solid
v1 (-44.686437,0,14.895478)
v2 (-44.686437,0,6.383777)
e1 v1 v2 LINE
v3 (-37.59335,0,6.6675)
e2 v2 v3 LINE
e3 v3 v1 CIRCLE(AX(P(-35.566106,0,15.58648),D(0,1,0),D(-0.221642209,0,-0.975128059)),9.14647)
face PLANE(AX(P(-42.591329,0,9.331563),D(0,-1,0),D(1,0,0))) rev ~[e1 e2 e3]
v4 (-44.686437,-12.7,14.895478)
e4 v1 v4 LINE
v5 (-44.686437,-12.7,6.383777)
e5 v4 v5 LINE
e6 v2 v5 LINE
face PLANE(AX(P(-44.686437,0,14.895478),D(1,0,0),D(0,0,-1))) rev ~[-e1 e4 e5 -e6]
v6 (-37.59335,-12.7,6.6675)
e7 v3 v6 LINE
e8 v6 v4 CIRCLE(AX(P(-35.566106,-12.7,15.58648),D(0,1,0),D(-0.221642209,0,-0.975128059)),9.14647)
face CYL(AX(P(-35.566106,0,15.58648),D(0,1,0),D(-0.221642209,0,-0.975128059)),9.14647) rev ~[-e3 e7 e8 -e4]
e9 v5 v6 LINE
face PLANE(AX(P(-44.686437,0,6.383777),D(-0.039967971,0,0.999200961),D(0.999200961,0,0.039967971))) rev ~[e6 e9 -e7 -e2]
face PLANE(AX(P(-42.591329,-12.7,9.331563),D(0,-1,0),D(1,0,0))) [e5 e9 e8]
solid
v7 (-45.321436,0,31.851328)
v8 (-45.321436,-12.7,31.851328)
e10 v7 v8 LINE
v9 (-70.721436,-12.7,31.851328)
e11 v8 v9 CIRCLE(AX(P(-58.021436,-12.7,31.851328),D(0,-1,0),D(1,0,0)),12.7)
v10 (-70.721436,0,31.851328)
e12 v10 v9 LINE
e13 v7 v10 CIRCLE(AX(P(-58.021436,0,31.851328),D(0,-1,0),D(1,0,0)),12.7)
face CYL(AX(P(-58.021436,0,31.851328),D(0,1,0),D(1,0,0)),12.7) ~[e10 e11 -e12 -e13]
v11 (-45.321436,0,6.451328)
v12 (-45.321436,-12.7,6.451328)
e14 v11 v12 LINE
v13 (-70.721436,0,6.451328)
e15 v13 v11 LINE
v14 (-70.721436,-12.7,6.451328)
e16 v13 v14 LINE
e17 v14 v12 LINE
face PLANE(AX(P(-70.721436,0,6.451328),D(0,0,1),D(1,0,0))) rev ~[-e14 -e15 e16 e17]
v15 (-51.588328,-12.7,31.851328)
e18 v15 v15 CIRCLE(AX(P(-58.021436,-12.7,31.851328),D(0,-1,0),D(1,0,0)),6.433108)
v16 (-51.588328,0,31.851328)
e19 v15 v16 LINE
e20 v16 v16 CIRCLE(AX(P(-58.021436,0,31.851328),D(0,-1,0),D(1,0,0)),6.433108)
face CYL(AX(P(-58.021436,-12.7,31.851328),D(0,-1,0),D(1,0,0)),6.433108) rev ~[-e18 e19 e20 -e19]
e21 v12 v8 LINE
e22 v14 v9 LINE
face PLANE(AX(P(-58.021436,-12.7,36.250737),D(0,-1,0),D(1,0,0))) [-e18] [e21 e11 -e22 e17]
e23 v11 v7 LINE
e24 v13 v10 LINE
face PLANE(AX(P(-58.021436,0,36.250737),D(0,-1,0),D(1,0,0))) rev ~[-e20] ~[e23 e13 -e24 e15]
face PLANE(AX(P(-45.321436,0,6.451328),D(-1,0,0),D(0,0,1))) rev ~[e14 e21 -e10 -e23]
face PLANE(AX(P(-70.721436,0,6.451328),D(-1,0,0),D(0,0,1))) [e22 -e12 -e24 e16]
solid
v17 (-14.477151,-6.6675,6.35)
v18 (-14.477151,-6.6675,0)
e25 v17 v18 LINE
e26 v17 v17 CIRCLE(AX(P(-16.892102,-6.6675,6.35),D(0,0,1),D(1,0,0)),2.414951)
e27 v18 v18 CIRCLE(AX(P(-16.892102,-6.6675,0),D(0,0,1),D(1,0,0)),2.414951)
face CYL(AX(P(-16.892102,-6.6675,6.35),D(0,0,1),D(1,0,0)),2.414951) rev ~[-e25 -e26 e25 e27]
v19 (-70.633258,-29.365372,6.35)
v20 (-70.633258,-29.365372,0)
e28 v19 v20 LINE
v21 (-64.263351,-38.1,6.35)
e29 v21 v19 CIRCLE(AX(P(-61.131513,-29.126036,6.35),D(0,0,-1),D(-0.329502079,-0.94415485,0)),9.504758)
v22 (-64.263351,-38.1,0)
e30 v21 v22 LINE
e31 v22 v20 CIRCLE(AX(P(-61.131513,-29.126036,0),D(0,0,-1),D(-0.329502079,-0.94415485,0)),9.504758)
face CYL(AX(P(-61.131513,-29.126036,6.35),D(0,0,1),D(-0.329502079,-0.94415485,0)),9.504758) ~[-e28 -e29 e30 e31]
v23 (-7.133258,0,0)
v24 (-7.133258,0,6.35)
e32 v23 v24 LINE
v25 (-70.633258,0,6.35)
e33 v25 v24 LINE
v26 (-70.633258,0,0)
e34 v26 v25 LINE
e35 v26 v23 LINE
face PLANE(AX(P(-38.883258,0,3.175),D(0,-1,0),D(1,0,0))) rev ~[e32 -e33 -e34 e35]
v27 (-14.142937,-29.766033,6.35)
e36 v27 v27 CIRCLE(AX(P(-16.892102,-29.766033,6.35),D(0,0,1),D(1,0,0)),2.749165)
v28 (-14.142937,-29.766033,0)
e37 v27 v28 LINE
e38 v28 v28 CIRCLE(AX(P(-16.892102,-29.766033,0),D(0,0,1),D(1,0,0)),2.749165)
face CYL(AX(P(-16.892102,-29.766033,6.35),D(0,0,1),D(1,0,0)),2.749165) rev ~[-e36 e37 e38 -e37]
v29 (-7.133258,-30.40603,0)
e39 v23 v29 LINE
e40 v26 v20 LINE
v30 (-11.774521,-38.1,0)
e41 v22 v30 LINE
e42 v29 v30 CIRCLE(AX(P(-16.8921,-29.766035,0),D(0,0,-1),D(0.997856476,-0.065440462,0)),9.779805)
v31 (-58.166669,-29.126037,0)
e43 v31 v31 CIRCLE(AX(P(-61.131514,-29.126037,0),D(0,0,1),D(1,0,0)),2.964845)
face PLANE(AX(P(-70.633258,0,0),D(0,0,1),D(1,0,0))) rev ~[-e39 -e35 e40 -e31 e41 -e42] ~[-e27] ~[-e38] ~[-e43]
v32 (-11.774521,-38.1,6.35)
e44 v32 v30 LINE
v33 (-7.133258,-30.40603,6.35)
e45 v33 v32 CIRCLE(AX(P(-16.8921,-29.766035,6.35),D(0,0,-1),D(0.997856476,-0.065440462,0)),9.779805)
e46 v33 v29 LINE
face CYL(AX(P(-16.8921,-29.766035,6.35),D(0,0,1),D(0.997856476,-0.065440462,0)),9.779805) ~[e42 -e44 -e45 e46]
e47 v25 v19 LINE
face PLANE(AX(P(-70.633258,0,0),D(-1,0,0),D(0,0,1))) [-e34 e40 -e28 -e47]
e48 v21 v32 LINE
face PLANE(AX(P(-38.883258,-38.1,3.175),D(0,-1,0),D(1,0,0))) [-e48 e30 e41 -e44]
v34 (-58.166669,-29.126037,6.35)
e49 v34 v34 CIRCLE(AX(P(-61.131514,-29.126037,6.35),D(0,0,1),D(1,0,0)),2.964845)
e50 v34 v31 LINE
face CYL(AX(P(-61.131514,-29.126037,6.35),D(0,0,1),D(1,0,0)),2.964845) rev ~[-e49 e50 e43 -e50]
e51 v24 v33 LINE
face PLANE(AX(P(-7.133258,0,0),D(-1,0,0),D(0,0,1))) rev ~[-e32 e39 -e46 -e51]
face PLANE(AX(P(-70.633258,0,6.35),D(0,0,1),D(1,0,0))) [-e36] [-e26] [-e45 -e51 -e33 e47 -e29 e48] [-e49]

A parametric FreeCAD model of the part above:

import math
import FreeCAD as App
import Part
import Sketcher
from FreeCAD import Vector
Q = App.Units.Quantity


def add_polygon(sketch, points):
    """Adds a closed chain of lines whose ends are joined by coincident constraints."""
    first, n = sketch.GeometryCount, len(points)
    for a, b in zip(points, points[1:] + points[:1]):
        sketch.addGeometry(Part.LineSegment(App.Vector(*a, 0), App.Vector(*b, 0)), False)
    for i in range(n):
        sketch.addConstraint(Sketcher.Constraint("Coincident", first + i, 2, first + (i + 1) % n, 1))

doc = App.newDocument("Part")
body = doc.addObject("PartDesign::Body", "Body")

sketch1 = body.newObject("Sketcher::SketchObject", "Sketch")
sketch1.AttachmentSupport = (doc.getObject("XZ_Plane"), [""])
sketch1.MapMode = "FlatFace"
add_polygon(sketch1, [(-70.633258, 6.35), (-70.633258, 0), (-7.133258, 0), (-7.133258, 6.35)])
sketch1.addConstraint([
    Sketcher.Constraint("Vertical", 0),
    Sketcher.Constraint("Horizontal", 1),
    Sketcher.Constraint("Vertical", 2),
    Sketcher.Constraint("Horizontal", 3),
    Sketcher.Constraint("PointOnObject", 0, 2, -1),
    Sketcher.Constraint("DistanceX", 1, 1, 1, 2, Q("2.5 in")),
    Sketcher.Constraint("DistanceY", 0, 2, 0, 1, Q("0.25 in")),
    Sketcher.Constraint("DistanceX", 0, 2, -1, 1, Q("70.633258 mm")),
])
pad1 = body.newObject("PartDesign::Pad", "Pad")
pad1.Profile = sketch1
pad1.Length = Q("1.5 in")

sketch2 = body.newObject("Sketcher::SketchObject", "Sketch001")
sketch2.AttachmentSupport = (doc.getObject("XY_Plane"), [""])
sketch2.MapMode = "FlatFace"
sketch2.AttachmentOffset = App.Placement(Vector(0, 0, 0.25 * 25.4), App.Rotation())
sketch2.addGeometry([
    Part.ArcOfCircle(Part.Circle(Vector(-61.131513, -29.126036, 0), Vector(0, 0, 1), 9.504758), math.radians(-178.557104), math.radians(-109.238556)),
    Part.LineSegment(Vector(-70.633258, -29.365372, 0), Vector(-70.633258, -38.1, 0)),
    Part.LineSegment(Vector(-70.633258, -38.1, 0), Vector(-64.263351, -38.1, 0)),
    Part.ArcOfCircle(Part.Circle(Vector(-16.8921, -29.766035, 0), Vector(0, 0, 1), 9.779805), math.radians(-58.447459), math.radians(-3.752144)),
    Part.LineSegment(Vector(-11.774521, -38.1, 0), Vector(-7.133258, -38.1, 0)),
    Part.LineSegment(Vector(-7.133258, -38.1, 0), Vector(-7.133258, -30.40603, 0)),
], False)
sketch2.addConstraint([
    Sketcher.Constraint("Coincident", 0, 1, 1, 1),
    Sketcher.Constraint("Coincident", 1, 2, 2, 1),
    Sketcher.Constraint("Coincident", 2, 2, 0, 2),
    Sketcher.Constraint("Coincident", 3, 1, 4, 1),
    Sketcher.Constraint("Coincident", 4, 2, 5, 1),
    Sketcher.Constraint("Coincident", 5, 2, 3, 2),
    Sketcher.Constraint("Vertical", 1),
    Sketcher.Constraint("Horizontal", 2),
    Sketcher.Constraint("Horizontal", 4),
    Sketcher.Constraint("Vertical", 5),
    Sketcher.Constraint("Horizontal", 2, 2, 3, 1),
    Sketcher.Constraint("DistanceY", 1, 2, -1, 1, Q("1.5 in")),
    Sketcher.Constraint("DistanceX", 1, 2, 4, 2, Q("2.5 in")),
    Sketcher.Constraint("Radius", 0, Q("9.504758 mm")),
    Sketcher.Constraint("Radius", 3, Q("9.779805 mm")),
    Sketcher.Constraint("DistanceY", 1, 2, 1, 1, Q("8.734628 mm")),
    Sketcher.Constraint("DistanceY", 5, 1, 5, 2, Q("7.69397 mm")),
    Sketcher.Constraint("DistanceX", 3, 3, -1, 1, Q("16.8921 mm")),
    Sketcher.Constraint("DistanceY", 3, 3, 0, 3, Q("0.639999 mm")),
    Sketcher.Constraint("DistanceX", 2, 1, 2, 2, Q("6.369907 mm")),
])
pocket1 = body.newObject("PartDesign::Pocket", "Pocket")
pocket1.Profile = sketch2
pocket1.Length = Q("0.25 in")

sketch3 = body.newObject("Sketcher::SketchObject", "Sketch002")
sketch3.AttachmentSupport = (doc.getObject("XY_Plane"), [""])
sketch3.MapMode = "FlatFace"
sketch3.AttachmentOffset = App.Placement(Vector(0, 0, 0.25 * 25.4), App.Rotation())
sketch3.addGeometry([
    Part.Circle(Vector(-16.892102, -6.6675, 0), Vector(0, 0, 1), 2.414951),
    Part.Circle(Vector(-16.892102, -29.766033, 0), Vector(0, 0, 1), 2.749165),
    Part.Circle(Vector(-61.131514, -29.126037, 0), Vector(0, 0, 1), 2.964845),
], False)
sketch3.addConstraint([
    Sketcher.Constraint("Vertical", 0, 3, 1, 3),
    Sketcher.Constraint("Diameter", 0, Q("4.829902 mm")),
    Sketcher.Constraint("Diameter", 1, Q("5.49833 mm")),
    Sketcher.Constraint("Diameter", 2, Q("5.92969 mm")),
    Sketcher.Constraint("DistanceY", 0, 3, -1, 1, Q("0.2625 in")),
    Sketcher.Constraint("DistanceX", 0, 3, -1, 1, Q("16.892102 mm")),
    Sketcher.Constraint("DistanceY", 1, 3, -1, 1, Q("29.766033 mm")),
    Sketcher.Constraint("DistanceX", 2, 3, -1, 1, Q("61.131514 mm")),
    Sketcher.Constraint("DistanceY", 2, 3, -1, 1, Q("29.126037 mm")),
])
pocket2 = body.newObject("PartDesign::Pocket", "Pocket001")
pocket2.Profile = sketch3
pocket2.Length = Q("0.25 in")
body2 = doc.addObject("PartDesign::Body", "Body001")

sketch4 = body2.newObject("Sketcher::SketchObject", "Sketch003")
sketch4.AttachmentSupport = (doc.getObject("XZ_Plane001"), [""])
sketch4.MapMode = "FlatFace"
sketch4.addGeometry([
    Part.ArcOfCircle(Part.Circle(Vector(-58.021436, 31.851328, 0), Vector(0, 0, 1), 12.7), math.radians(0), math.radians(180)),
    Part.LineSegment(Vector(-70.721436, 31.851328, 0), Vector(-70.721436, 6.451328, 0)),
    Part.LineSegment(Vector(-70.721436, 6.451328, 0), Vector(-45.321436, 6.451328, 0)),
    Part.LineSegment(Vector(-45.321436, 6.451328, 0), Vector(-45.321436, 31.851328, 0)),
], False)
sketch4.addConstraint([
    Sketcher.Constraint("Tangent", 0, 2, 1, 1),
    Sketcher.Constraint("Coincident", 1, 2, 2, 1),
    Sketcher.Constraint("Coincident", 2, 2, 3, 1),
    Sketcher.Constraint("Tangent", 3, 2, 0, 1),
    Sketcher.Constraint("Vertical", 1),
    Sketcher.Constraint("Horizontal", 2),
    Sketcher.Constraint("Vertical", 3),
    Sketcher.Constraint("Equal", 2, 1),
    Sketcher.Constraint("Radius", 0, Q("0.5 in")),
    Sketcher.Constraint("DistanceY", -1, 1, 1, 2, Q("6.451328 mm")),
    Sketcher.Constraint("DistanceX", 0, 3, -1, 1, Q("58.021436 mm")),
])
pad2 = body2.newObject("PartDesign::Pad", "Pad001")
pad2.Profile = sketch4
pad2.Length = Q("0.5 in")

sketch5 = body2.newObject("Sketcher::SketchObject", "Sketch004")
sketch5.AttachmentSupport = (doc.getObject("XZ_Plane001"), [""])
sketch5.MapMode = "FlatFace"
sketch5.AttachmentOffset = App.Placement(Vector(0, 0, 0.5 * 25.4), App.Rotation())
sketch5.addGeometry(Part.Circle(Vector(-58.021436, 31.851328, 0), Vector(0, 0, 1), 6.433108), False)
sketch5.addConstraint([
    Sketcher.Constraint("Diameter", 0, Q("12.866216 mm")),
    Sketcher.Constraint("DistanceX", 0, 3, -1, 1, Q("58.021436 mm")),
    Sketcher.Constraint("DistanceY", -1, 1, 0, 3, Q("31.851328 mm")),
])
pocket3 = body2.newObject("PartDesign::Pocket", "Pocket002")
pocket3.Profile = sketch5
pocket3.Length = Q("0.5 in")
body3 = doc.addObject("PartDesign::Body", "Body002")

sketch6 = body3.newObject("Sketcher::SketchObject", "Sketch005")
sketch6.AttachmentSupport = (doc.getObject("XZ_Plane002"), [""])
sketch6.MapMode = "FlatFace"
sketch6.addGeometry([
    Part.ArcOfCircle(Part.Circle(Vector(-35.566106, 15.58648, 0), Vector(0, 0, 1), 9.14647), math.radians(-175.667263), math.radians(-102.805506)),
    Part.LineSegment(Vector(-44.686437, 14.895478, 0), Vector(-44.686437, 6.383777, 0)),
    Part.LineSegment(Vector(-44.686437, 6.383777, 0), Vector(-37.59335, 6.6675, 0)),
], False)
sketch6.addConstraint([
    Sketcher.Constraint("Coincident", 0, 1, 1, 1),
    Sketcher.Constraint("Coincident", 1, 2, 2, 1),
    Sketcher.Constraint("Coincident", 2, 2, 0, 2),
    Sketcher.Constraint("Vertical", 1),
    Sketcher.Constraint("Radius", 0, Q("9.14647 mm")),
    Sketcher.Constraint("DistanceY", 1, 2, 1, 1, Q("8.511701 mm")),
    Sketcher.Constraint("DistanceY", -1, 1, 2, 2, Q("0.2625 in")),
    Sketcher.Constraint("DistanceY", 0, 1, 0, 3, Q("0.691002 mm")),
    Sketcher.Constraint("Distance", 2, Q("7.098759 mm")),
    Sketcher.Constraint("DistanceX", 2, 2, -1, 1, Q("37.59335 mm")),
])
pad3 = body3.newObject("PartDesign::Pad", "Pad002")
pad3.Profile = sketch6
pad3.Length = Q("0.5 in")

doc.recompute()
